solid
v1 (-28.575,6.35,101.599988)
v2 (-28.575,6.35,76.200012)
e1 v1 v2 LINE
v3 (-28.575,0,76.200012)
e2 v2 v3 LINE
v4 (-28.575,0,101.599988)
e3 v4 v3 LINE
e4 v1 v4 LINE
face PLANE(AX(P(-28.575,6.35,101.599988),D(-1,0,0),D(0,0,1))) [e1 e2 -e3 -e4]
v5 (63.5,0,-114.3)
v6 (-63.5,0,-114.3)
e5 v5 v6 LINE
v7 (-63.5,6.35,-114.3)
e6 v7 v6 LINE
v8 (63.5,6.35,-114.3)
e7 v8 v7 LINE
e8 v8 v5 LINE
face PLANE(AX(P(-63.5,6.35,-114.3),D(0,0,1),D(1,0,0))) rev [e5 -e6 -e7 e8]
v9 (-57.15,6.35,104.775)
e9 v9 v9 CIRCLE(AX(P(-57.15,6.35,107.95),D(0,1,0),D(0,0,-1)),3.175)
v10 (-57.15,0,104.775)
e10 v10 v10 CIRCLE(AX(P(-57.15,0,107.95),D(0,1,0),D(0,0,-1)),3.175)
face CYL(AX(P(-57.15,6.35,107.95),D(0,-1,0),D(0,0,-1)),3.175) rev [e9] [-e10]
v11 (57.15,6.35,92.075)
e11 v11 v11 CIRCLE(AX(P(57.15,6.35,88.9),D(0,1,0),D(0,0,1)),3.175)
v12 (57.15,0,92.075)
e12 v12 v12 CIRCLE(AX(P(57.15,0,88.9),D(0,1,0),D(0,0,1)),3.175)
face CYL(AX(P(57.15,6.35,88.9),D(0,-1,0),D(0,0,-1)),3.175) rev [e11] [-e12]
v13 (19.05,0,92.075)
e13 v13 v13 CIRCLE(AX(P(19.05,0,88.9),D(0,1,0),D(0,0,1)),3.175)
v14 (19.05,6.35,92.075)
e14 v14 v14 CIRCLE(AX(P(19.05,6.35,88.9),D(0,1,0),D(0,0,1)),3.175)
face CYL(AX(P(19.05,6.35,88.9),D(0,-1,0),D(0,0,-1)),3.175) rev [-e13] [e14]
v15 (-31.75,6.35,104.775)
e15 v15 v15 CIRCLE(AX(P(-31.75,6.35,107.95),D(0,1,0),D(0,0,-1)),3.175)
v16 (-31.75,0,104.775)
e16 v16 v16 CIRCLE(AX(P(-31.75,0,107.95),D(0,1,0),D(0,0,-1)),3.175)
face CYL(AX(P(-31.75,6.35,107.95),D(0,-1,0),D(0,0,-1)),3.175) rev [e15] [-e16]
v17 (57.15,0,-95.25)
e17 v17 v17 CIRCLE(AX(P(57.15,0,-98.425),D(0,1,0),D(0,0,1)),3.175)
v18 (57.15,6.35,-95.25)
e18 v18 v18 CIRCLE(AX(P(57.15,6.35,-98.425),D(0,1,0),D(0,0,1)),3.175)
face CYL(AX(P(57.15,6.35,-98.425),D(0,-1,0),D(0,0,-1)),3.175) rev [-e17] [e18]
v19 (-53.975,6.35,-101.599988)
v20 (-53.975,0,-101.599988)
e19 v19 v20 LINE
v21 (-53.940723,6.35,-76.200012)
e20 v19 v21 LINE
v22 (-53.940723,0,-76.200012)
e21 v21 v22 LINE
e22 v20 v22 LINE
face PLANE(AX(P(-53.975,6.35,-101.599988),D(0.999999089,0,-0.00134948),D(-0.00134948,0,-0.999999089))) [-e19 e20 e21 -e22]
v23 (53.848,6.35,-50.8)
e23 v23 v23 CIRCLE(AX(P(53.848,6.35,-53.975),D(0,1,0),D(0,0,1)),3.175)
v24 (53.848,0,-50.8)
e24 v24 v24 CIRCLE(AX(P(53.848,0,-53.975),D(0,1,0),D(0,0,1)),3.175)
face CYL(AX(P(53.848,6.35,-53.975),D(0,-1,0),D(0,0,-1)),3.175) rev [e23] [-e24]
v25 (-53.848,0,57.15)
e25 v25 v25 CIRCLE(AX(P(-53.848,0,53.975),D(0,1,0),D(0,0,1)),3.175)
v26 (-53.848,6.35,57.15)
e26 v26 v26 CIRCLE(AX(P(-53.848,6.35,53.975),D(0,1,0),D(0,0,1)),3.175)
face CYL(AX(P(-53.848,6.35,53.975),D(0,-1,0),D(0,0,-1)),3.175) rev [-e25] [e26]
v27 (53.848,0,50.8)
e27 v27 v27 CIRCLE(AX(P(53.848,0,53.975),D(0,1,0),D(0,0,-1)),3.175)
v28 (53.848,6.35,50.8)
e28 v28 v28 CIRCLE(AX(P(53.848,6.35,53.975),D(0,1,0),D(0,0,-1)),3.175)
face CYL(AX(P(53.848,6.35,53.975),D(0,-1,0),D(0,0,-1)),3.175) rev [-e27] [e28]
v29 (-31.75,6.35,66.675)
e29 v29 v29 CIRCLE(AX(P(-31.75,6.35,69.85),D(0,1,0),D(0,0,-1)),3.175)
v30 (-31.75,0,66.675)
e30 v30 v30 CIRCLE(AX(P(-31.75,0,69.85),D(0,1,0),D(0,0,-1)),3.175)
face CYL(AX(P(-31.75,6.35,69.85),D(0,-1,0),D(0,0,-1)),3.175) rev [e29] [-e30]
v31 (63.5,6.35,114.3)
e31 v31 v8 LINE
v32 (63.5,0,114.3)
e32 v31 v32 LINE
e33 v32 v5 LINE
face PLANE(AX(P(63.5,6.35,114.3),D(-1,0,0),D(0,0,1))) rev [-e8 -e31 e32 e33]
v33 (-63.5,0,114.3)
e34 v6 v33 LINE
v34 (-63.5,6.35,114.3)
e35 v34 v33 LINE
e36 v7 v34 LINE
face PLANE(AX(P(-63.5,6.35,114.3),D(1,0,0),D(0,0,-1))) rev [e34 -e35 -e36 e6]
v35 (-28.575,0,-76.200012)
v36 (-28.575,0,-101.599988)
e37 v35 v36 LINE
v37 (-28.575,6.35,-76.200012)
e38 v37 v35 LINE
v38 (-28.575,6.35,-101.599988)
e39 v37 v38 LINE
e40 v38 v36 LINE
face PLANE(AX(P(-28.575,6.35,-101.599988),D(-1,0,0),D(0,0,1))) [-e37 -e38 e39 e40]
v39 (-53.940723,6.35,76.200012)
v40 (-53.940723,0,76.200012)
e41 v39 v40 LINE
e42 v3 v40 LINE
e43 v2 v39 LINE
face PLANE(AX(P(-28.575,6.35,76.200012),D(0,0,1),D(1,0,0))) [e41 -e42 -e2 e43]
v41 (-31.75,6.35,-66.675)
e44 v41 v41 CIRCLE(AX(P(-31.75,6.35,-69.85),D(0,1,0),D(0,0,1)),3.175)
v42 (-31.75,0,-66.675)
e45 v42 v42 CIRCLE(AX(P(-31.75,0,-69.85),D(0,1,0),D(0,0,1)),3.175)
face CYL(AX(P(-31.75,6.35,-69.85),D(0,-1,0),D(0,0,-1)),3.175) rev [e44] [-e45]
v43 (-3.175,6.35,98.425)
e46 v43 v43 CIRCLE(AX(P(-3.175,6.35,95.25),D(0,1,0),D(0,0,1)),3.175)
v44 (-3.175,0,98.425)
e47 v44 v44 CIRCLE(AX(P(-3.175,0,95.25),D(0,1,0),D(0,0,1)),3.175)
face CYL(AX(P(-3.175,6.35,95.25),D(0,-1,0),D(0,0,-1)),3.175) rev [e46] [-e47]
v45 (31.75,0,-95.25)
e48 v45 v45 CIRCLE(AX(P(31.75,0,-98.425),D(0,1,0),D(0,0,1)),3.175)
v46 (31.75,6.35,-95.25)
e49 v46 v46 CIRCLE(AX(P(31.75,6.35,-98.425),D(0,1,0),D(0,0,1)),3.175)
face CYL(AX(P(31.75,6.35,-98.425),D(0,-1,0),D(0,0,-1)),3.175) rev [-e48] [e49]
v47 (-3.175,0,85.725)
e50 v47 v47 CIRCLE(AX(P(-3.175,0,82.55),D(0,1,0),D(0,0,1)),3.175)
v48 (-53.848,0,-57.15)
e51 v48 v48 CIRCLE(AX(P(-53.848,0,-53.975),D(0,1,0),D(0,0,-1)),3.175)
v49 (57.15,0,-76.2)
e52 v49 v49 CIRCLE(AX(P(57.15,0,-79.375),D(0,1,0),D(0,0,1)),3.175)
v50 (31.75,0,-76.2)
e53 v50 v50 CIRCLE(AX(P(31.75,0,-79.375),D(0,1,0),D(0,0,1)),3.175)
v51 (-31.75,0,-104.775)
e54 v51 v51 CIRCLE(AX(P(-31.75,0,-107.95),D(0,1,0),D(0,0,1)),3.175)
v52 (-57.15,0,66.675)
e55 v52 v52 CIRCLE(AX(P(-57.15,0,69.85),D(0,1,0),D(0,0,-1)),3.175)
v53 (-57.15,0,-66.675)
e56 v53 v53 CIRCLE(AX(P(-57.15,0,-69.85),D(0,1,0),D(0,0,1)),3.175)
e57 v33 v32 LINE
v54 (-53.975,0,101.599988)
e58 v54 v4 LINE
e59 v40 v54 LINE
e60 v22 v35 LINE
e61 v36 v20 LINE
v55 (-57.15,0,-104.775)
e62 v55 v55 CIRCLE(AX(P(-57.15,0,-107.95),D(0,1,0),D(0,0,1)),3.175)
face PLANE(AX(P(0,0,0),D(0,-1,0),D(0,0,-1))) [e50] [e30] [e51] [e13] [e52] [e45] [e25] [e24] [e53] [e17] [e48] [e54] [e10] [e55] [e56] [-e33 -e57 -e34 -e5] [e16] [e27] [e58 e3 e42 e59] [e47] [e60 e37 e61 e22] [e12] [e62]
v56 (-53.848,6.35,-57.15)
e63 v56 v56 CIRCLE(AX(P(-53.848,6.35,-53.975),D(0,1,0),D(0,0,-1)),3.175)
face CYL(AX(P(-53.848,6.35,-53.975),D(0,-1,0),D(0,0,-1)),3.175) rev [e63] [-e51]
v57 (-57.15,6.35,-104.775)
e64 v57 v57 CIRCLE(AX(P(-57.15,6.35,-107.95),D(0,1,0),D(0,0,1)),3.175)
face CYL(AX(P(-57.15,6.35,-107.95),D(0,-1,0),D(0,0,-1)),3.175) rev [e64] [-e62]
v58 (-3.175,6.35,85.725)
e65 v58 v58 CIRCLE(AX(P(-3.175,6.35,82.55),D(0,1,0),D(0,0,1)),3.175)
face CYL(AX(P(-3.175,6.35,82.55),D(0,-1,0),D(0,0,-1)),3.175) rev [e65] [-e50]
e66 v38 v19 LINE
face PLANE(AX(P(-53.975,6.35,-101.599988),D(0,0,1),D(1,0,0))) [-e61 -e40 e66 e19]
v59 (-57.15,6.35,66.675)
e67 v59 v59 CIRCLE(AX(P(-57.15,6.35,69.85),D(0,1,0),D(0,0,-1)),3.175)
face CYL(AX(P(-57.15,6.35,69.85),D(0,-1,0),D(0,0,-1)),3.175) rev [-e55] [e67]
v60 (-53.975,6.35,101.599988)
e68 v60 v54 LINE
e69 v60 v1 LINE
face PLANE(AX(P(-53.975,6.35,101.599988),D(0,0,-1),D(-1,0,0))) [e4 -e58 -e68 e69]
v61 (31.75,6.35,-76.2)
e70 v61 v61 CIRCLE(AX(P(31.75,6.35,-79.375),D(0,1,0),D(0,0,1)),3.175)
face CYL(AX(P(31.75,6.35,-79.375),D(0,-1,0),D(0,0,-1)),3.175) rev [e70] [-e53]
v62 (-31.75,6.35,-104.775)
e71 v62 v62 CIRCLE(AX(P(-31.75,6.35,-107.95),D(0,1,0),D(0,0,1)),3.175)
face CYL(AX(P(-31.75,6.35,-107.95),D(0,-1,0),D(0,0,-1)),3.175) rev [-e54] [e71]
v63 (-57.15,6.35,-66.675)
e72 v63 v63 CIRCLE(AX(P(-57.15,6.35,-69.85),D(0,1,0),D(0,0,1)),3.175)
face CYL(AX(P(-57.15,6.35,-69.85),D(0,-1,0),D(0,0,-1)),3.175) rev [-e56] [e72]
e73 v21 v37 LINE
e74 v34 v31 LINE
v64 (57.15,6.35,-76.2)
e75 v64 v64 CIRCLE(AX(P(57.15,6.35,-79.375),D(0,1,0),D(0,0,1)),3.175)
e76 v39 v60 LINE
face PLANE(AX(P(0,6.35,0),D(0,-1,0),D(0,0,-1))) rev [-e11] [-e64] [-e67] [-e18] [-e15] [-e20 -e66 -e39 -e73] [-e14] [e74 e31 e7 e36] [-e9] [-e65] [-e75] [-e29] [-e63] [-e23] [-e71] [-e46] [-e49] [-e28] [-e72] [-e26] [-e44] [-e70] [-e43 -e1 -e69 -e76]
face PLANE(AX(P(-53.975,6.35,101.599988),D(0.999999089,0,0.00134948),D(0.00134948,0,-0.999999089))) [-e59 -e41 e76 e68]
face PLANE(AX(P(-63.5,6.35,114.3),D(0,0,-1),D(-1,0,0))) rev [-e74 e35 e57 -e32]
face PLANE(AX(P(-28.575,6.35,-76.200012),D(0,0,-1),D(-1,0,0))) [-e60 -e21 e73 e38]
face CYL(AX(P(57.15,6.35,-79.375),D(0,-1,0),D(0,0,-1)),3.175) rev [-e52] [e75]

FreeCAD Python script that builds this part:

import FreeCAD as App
import Part
import Sketcher
Q = App.Units.Quantity


def add_polygon(sketch, points):
    """Adds a closed chain of lines whose ends are joined by coincident constraints."""
    first, n = sketch.GeometryCount, len(points)
    for a, b in zip(points, points[1:] + points[:1]):
        sketch.addGeometry(Part.LineSegment(App.Vector(*a, 0), App.Vector(*b, 0)), False)
    for i in range(n):
        sketch.addConstraint(Sketcher.Constraint("Coincident", first + i, 2, first + (i + 1) % n, 1))

doc = App.newDocument("Part")
body = doc.addObject("PartDesign::Body", "Body")

# Sketch on XZ plane
sketch1 = body.newObject("Sketcher::SketchObject", "Sketch")
sketch1.AttachmentSupport = (doc.getObject("XZ_Plane"), [""])
sketch1.MapMode = "FlatFace"
add_polygon(sketch1, [(-63.5, -114.3), (-63.5, 114.3), (63.5, 114.3), (63.5, -114.3)])  # lines 0-3
sketch1.addGeometry(Part.Circle(App.Vector(-57.15, 107.95, 0), App.Vector(0, 0, 1), 3.175), False)  # 4
sketch1.addGeometry(Part.Circle(App.Vector(-31.75, 107.95, 0), App.Vector(0, 0, 1), 3.175), False)  # 5
add_polygon(sketch1, [(-28.575, 101.599988), (-53.975, 101.599988), (-53.940723, 76.200012), (-28.575, 76.200012)])  # lines 6-9
sketch1.addGeometry(Part.Circle(App.Vector(-57.15, 69.85, 0), App.Vector(0, 0, 1), 3.175), False)  # 10
sketch1.addGeometry(Part.Circle(App.Vector(-31.75, 69.85, 0), App.Vector(0, 0, 1), 3.175), False)  # 11
sketch1.addGeometry(Part.Circle(App.Vector(-3.175, 95.25, 0), App.Vector(0, 0, 1), 3.175), False)  # 12
sketch1.addGeometry(Part.Circle(App.Vector(-3.175, 82.55, 0), App.Vector(0, 0, 1), 3.175), False)  # 13
sketch1.addGeometry(Part.Circle(App.Vector(-53.848, 53.975, 0), App.Vector(0, 0, 1), 3.175), False)  # 14
sketch1.addGeometry(Part.Circle(App.Vector(19.05, 88.9, 0), App.Vector(0, 0, 1), 3.175), False)  # 15
sketch1.addGeometry(Part.Circle(App.Vector(57.15, 88.9, 0), App.Vector(0, 0, 1), 3.175), False)  # 16
sketch1.addGeometry(Part.Circle(App.Vector(53.848, 53.975, 0), App.Vector(0, 0, 1), 3.175), False)  # 17
sketch1.addGeometry(Part.Circle(App.Vector(-53.848, -53.975, 0), App.Vector(0, 0, 1), 3.175), False)  # 18
sketch1.addGeometry(Part.Circle(App.Vector(-57.15, -69.85, 0), App.Vector(0, 0, 1), 3.175), False)  # 19
sketch1.addGeometry(Part.Circle(App.Vector(-31.75, -69.85, 0), App.Vector(0, 0, 1), 3.175), False)  # 20
sketch1.addGeometry(Part.Circle(App.Vector(-57.15, -107.95, 0), App.Vector(0, 0, 1), 3.175), False)  # 21
add_polygon(sketch1, [(-53.940723, -76.200012), (-53.975, -101.599988), (-28.575, -101.599988), (-28.575, -76.200012)])  # lines 22-25
sketch1.addGeometry(Part.Circle(App.Vector(-31.75, -107.95, 0), App.Vector(0, 0, 1), 3.175), False)  # 26
sketch1.addGeometry(Part.Circle(App.Vector(53.848, -53.975, 0), App.Vector(0, 0, 1), 3.175), False)  # 27
sketch1.addGeometry(Part.Circle(App.Vector(31.75, -79.375, 0), App.Vector(0, 0, 1), 3.175), False)  # 28
sketch1.addGeometry(Part.Circle(App.Vector(57.15, -79.375, 0), App.Vector(0, 0, 1), 3.175), False)  # 29
sketch1.addGeometry(Part.Circle(App.Vector(31.75, -98.425, 0), App.Vector(0, 0, 1), 3.175), False)  # 30
sketch1.addGeometry(Part.Circle(App.Vector(57.15, -98.425, 0), App.Vector(0, 0, 1), 3.175), False)  # 31
sketch1.addConstraint([
    Sketcher.Constraint("Vertical", 0),
    Sketcher.Constraint("Horizontal", 1),
    Sketcher.Constraint("Vertical", 2),
    Sketcher.Constraint("Horizontal", 3),
    Sketcher.Constraint("Horizontal", 6),
    Sketcher.Constraint("Horizontal", 8),
    Sketcher.Constraint("Vertical", 9),
    Sketcher.Constraint("Horizontal", 23),
    Sketcher.Constraint("Vertical", 24),
    Sketcher.Constraint("Horizontal", 25),
    Sketcher.Constraint("Equal", 4, 5),
    Sketcher.Constraint("Equal", 5, 10),
    Sketcher.Constraint("Equal", 10, 11),
    Sketcher.Constraint("Equal", 11, 12),
    Sketcher.Constraint("Equal", 12, 13),
    Sketcher.Constraint("Equal", 13, 14),
    Sketcher.Constraint("Equal", 14, 15),
    Sketcher.Constraint("Equal", 15, 16),
    Sketcher.Constraint("Equal", 16, 17),
    Sketcher.Constraint("Equal", 17, 18),
    Sketcher.Constraint("Equal", 18, 19),
    Sketcher.Constraint("Equal", 19, 20),
    Sketcher.Constraint("Equal", 20, 21),
    Sketcher.Constraint("Equal", 21, 26),
    Sketcher.Constraint("Equal", 26, 27),
    Sketcher.Constraint("Equal", 27, 28),
    Sketcher.Constraint("Equal", 28, 29),
    Sketcher.Constraint("Equal", 29, 30),
    Sketcher.Constraint("Equal", 30, 31),
    Sketcher.Constraint("Symmetric", 17, 3, 18, 3, -1, 1),
    Sketcher.Constraint("Symmetric", 14, 3, 27, 3, -1, 1),
    Sketcher.Constraint("Symmetric", 0, 2, 2, 2, -1, 1),
    Sketcher.Constraint("Symmetric", 14, 3, 17, 3, -2),
    Sketcher.Constraint("Symmetric", 10, 3, 19, 3, -1),
    Sketcher.Constraint("Symmetric", 11, 3, 20, 3, -1),
    Sketcher.Constraint("Symmetric", 4, 3, 21, 3, -1),
    Sketcher.Constraint("Symmetric", 5, 3, 26, 3, -1),
    Sketcher.Constraint("Symmetric", 6, 2, 22, 2, -1),
    Sketcher.Constraint("Symmetric", 8, 2, 24, 2, -1),
    Sketcher.Constraint("Horizontal", 4, 3, 5, 3),
    Sketcher.Constraint("Horizontal", 10, 3, 11, 3),
    Sketcher.Constraint("Horizontal", 15, 3, 16, 3),
    Sketcher.Constraint("Horizontal", 28, 3, 29, 3),
    Sketcher.Constraint("Horizontal", 30, 3, 31, 3),
    Sketcher.Constraint("Vertical", 4, 3, 10, 3),
    Sketcher.Constraint("Vertical", 5, 3, 11, 3),
    Sketcher.Constraint("Vertical", 12, 3, 13, 3),
    Sketcher.Constraint("Vertical", 16, 3, 29, 3),
    Sketcher.Constraint("Vertical", 28, 3, 30, 3),
    Sketcher.Constraint("Vertical", 29, 3, 31, 3),
    Sketcher.Constraint("Vertical", 7, 2, 25, 2),
    Sketcher.Constraint("Diameter", 4, Q("0.25 in")),
    Sketcher.Constraint("DistanceX", 1, 1, 1, 2, Q("5 in")),
    Sketcher.Constraint("DistanceX", 6, 2, 6, 1, Q("1 in")),
    Sketcher.Constraint("DistanceY", 0, 1, 0, 2, Q("9 in")),
    Sketcher.Constraint("Distance", 7, Q("1 in")),
    Sketcher.Constraint("DistanceX", 4, 3, 5, 3, Q("1 in")),
    Sketcher.Constraint("DistanceY", 11, 3, 12, 3, Q("1 in")),
    Sketcher.Constraint("DistanceY", 13, 3, 5, 3, Q("1 in")),
    Sketcher.Constraint("DistanceX", 5, 3, 15, 3, Q("2 in")),
    Sketcher.Constraint("DistanceY", 19, 3, 13, 3, Q("6 in")),
    Sketcher.Constraint("DistanceY", 28, 3, 27, 3, Q("1 in")),
    Sketcher.Constraint("DistanceX", 28, 3, 29, 3, Q("1 in")),
    Sketcher.Constraint("DistanceY", 16, 3, 1, 2, Q("1 in")),
    Sketcher.Constraint("DistanceX", 8, 2, 13, 3, Q("1 in")),
    Sketcher.Constraint("DistanceY", 10, 3, 4, 3, Q("1.5 in")),
    Sketcher.Constraint("DistanceX", 15, 3, 16, 3, Q("1.5 in")),
    Sketcher.Constraint("DistanceX", 4, 3, -1, 1, Q("2.25 in")),
    Sketcher.Constraint("DistanceX", 14, 3, -1, 1, Q("2.12 in")),
    Sketcher.Constraint("DistanceY", 18, 3, 14, 3, Q("4.25 in")),
    Sketcher.Constraint("DistanceY", 30, 3, 28, 3, Q("0.75 in")),
    Sketcher.Constraint("DistanceX", 12, 3, -1, 1, Q("0.125 in")),
    Sketcher.Constraint("DistanceX", 8, 1, 8, 2, Q("25.365723 mm")),
    Sketcher.Constraint("DistanceY", -1, 1, 6, 2, Q("101.599988 mm")),
])
pad1 = body.newObject("PartDesign::Pad", "Pad")
pad1.Profile = sketch1
pad1.Length = Q("0.25 in")
pad1.Reversed = True

doc.recompute()
